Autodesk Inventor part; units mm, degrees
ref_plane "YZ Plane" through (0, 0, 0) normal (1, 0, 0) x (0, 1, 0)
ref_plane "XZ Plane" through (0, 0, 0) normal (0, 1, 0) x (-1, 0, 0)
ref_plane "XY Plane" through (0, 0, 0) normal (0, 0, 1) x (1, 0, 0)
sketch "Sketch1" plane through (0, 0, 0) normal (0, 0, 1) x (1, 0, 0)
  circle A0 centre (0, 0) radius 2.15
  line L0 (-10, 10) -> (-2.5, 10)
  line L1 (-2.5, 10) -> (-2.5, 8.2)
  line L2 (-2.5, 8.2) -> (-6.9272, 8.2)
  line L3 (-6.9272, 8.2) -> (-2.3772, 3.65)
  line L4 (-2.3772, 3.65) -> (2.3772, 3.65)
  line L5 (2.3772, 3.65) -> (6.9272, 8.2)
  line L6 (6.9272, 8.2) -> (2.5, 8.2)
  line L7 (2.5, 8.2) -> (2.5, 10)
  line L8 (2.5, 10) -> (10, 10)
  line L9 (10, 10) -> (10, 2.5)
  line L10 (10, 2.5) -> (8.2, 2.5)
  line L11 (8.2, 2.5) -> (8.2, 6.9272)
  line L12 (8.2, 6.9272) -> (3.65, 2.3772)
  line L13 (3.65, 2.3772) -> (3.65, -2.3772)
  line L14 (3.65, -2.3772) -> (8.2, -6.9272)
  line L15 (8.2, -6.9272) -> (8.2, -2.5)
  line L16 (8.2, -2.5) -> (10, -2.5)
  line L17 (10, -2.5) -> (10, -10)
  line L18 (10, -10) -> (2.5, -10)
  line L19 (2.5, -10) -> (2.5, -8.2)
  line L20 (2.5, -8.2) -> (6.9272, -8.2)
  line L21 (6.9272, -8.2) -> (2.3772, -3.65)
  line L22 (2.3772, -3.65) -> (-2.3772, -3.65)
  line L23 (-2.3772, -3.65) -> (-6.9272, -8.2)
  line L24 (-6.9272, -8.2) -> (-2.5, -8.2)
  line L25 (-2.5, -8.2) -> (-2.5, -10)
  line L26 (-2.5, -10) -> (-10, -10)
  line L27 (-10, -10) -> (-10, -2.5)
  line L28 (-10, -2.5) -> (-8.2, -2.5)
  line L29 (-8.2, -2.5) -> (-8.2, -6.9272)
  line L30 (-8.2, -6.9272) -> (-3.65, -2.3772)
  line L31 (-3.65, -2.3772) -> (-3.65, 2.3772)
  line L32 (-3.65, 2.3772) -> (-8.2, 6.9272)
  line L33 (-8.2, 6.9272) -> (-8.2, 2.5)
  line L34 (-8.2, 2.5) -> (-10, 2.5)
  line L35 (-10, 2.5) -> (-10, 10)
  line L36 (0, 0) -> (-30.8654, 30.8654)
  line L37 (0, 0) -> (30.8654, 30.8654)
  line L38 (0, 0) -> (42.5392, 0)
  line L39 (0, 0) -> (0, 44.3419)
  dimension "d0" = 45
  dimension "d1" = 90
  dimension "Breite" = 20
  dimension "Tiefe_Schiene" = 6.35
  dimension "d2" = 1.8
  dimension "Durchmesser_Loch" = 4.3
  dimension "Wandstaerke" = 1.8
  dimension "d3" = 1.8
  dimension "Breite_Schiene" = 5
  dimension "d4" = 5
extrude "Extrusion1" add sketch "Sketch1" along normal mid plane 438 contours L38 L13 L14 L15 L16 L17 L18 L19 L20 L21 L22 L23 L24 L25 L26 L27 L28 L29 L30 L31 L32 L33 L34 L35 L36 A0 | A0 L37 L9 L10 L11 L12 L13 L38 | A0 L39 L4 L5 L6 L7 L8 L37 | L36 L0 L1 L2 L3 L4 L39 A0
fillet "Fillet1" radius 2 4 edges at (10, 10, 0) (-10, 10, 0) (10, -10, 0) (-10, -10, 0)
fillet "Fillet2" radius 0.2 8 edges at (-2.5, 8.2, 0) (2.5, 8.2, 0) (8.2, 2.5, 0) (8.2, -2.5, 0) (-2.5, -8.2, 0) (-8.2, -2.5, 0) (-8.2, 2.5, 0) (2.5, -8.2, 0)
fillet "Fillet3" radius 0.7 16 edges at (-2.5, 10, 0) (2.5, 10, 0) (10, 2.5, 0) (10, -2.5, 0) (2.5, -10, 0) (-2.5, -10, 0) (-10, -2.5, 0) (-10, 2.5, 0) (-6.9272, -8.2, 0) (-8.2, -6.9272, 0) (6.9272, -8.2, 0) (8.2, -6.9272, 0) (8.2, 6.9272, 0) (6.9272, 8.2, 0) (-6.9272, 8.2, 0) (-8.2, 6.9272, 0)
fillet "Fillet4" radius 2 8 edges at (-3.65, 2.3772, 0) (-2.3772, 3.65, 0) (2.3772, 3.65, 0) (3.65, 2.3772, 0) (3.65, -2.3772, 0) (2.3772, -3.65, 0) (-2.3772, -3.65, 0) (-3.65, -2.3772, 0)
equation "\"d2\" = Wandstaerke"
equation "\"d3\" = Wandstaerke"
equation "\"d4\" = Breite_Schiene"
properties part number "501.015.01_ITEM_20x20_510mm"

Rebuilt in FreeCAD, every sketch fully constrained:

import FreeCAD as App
import Part
import Sketcher
from FreeCAD import Vector
Q = App.Units.Quantity


def edges_at(feature, points):
    """Names of the edges that pass closest to the given points."""
    edges = feature.Shape.Edges
    near = lambda p: min(range(len(edges)), key=lambda i: edges[i].distToShape(Part.Vertex(*p))[0])
    return sorted({f"Edge{near(p) + 1}" for p in points})

doc = App.newDocument("Part")
body = doc.addObject("PartDesign::Body", "Body")

# Sketch on XY plane
sketch1 = doc.addObject("Sketcher::SketchObject", "Sketch")
body.addObject(sketch1)
sketch1.AttachmentSupport = (doc.XY_Plane, [""])
sketch1.MapMode = "FlatFace"
sketch1.addGeometry([
    Part.LineSegment(Vector(3.6, -2.4, 0), Vector(3.6, 2.4, 0)),  # 0
    Part.LineSegment(Vector(3.6, 2.4, 0), Vector(8.2, 6.9, 0)),  # 1
    Part.LineSegment(Vector(8.2, 6.9, 0), Vector(8.2, 2.5, 0)),  # 2
    Part.LineSegment(Vector(8.2, 2.5, 0), Vector(10, 2.5, 0)),  # 3
    Part.LineSegment(Vector(10, 2.5, 0), Vector(10, 10, 0)),  # 4
    Part.LineSegment(Vector(10, 10, 0), Vector(2.5, 10, 0)),  # 5
    Part.LineSegment(Vector(2.5, 10, 0), Vector(2.5, 8.2, 0)),  # 6
    Part.LineSegment(Vector(2.5, 8.2, 0), Vector(6.9, 8.2, 0)),  # 7
    Part.LineSegment(Vector(6.9, 8.2, 0), Vector(2.4, 3.6, 0)),  # 8
    Part.LineSegment(Vector(2.4, 3.6, 0), Vector(-2.4, 3.6, 0)),  # 9
    Part.LineSegment(Vector(-2.4, 3.6, 0), Vector(-6.9, 8.2, 0)),  # 10
    Part.LineSegment(Vector(-6.9, 8.2, 0), Vector(-2.5, 8.2, 0)),  # 11
    Part.LineSegment(Vector(-2.5, 8.2, 0), Vector(-2.5, 10, 0)),  # 12
    Part.LineSegment(Vector(-2.5, 10, 0), Vector(-10, 10, 0)),  # 13
    Part.LineSegment(Vector(-10, 10, 0), Vector(-10, 2.5, 0)),  # 14
    Part.LineSegment(Vector(-10, 2.5, 0), Vector(-8.2, 2.5, 0)),  # 15
    Part.LineSegment(Vector(-8.2, 2.5, 0), Vector(-8.2, 6.9, 0)),  # 16
    Part.LineSegment(Vector(-8.2, 6.9, 0), Vector(-3.6, 2.4, 0)),  # 17
    Part.LineSegment(Vector(-3.6, 2.4, 0), Vector(-3.6, -2.4, 0)),  # 18
    Part.LineSegment(Vector(-3.6, -2.4, 0), Vector(-8.2, -6.9, 0)),  # 19
    Part.LineSegment(Vector(-8.2, -6.9, 0), Vector(-8.2, -2.5, 0)),  # 20
    Part.LineSegment(Vector(-8.2, -2.5, 0), Vector(-10, -2.5, 0)),  # 21
    Part.LineSegment(Vector(-10, -2.5, 0), Vector(-10, -10, 0)),  # 22
    Part.LineSegment(Vector(-10, -10, 0), Vector(-2.5, -10, 0)),  # 23
    Part.LineSegment(Vector(-2.5, -10, 0), Vector(-2.5, -8.2, 0)),  # 24
    Part.LineSegment(Vector(-2.5, -8.2, 0), Vector(-6.9, -8.2, 0)),  # 25
    Part.LineSegment(Vector(-6.9, -8.2, 0), Vector(-2.4, -3.6, 0)),  # 26
    Part.LineSegment(Vector(-2.4, -3.6, 0), Vector(2.4, -3.6, 0)),  # 27
    Part.LineSegment(Vector(2.4, -3.6, 0), Vector(6.9, -8.2, 0)),  # 28
    Part.LineSegment(Vector(6.9, -8.2, 0), Vector(2.5, -8.2, 0)),  # 29
    Part.LineSegment(Vector(2.5, -8.2, 0), Vector(2.5, -10, 0)),  # 30
    Part.LineSegment(Vector(2.5, -10, 0), Vector(10, -10, 0)),  # 31
    Part.LineSegment(Vector(10, -10, 0), Vector(10, -2.5, 0)),  # 32
    Part.LineSegment(Vector(10, -2.5, 0), Vector(8.2, -2.5, 0)),  # 33
    Part.LineSegment(Vector(8.2, -2.5, 0), Vector(8.2, -6.9, 0)),  # 34
    Part.LineSegment(Vector(8.2, -6.9, 0), Vector(3.6, -2.4, 0)),  # 35
    Part.Circle(Vector(0, 0, 0), Vector(0, 0, 1), 2.1),  # 36
], False)
sketch1.addConstraint([
    Sketcher.Constraint("Coincident", 0, 2, 1, 1),
    Sketcher.Constraint("Coincident", 1, 2, 2, 1),
    Sketcher.Constraint("Coincident", 2, 2, 3, 1),
    Sketcher.Constraint("Coincident", 3, 2, 4, 1),
    Sketcher.Constraint("Coincident", 4, 2, 5, 1),
    Sketcher.Constraint("Coincident", 5, 2, 6, 1),
    Sketcher.Constraint("Coincident", 6, 2, 7, 1),
    Sketcher.Constraint("Coincident", 7, 2, 8, 1),
    Sketcher.Constraint("Coincident", 8, 2, 9, 1),
    Sketcher.Constraint("Coincident", 9, 2, 10, 1),
    Sketcher.Constraint("Coincident", 10, 2, 11, 1),
    Sketcher.Constraint("Coincident", 11, 2, 12, 1),
    Sketcher.Constraint("Coincident", 12, 2, 13, 1),
    Sketcher.Constraint("Coincident", 13, 2, 14, 1),
    Sketcher.Constraint("Coincident", 14, 2, 15, 1),
    Sketcher.Constraint("Coincident", 15, 2, 16, 1),
    Sketcher.Constraint("Coincident", 16, 2, 17, 1),
    Sketcher.Constraint("Coincident", 17, 2, 18, 1),
    Sketcher.Constraint("Coincident", 18, 2, 19, 1),
    Sketcher.Constraint("Coincident", 19, 2, 20, 1),
    Sketcher.Constraint("Coincident", 20, 2, 21, 1),
    Sketcher.Constraint("Coincident", 21, 2, 22, 1),
    Sketcher.Constraint("Coincident", 22, 2, 23, 1),
    Sketcher.Constraint("Coincident", 23, 2, 24, 1),
    Sketcher.Constraint("Coincident", 24, 2, 25, 1),
    Sketcher.Constraint("Coincident", 25, 2, 26, 1),
    Sketcher.Constraint("Coincident", 26, 2, 27, 1),
    Sketcher.Constraint("Coincident", 27, 2, 28, 1),
    Sketcher.Constraint("Coincident", 28, 2, 29, 1),
    Sketcher.Constraint("Coincident", 29, 2, 30, 1),
    Sketcher.Constraint("Coincident", 30, 2, 31, 1),
    Sketcher.Constraint("Coincident", 31, 2, 32, 1),
    Sketcher.Constraint("Coincident", 32, 2, 33, 1),
    Sketcher.Constraint("Coincident", 33, 2, 34, 1),
    Sketcher.Constraint("Coincident", 34, 2, 35, 1),
    Sketcher.Constraint("Coincident", 35, 2, 0, 1),
    Sketcher.Constraint("Vertical", 0),
    Sketcher.Constraint("Vertical", 2),
    Sketcher.Constraint("Horizontal", 3),
    Sketcher.Constraint("Vertical", 4),
    Sketcher.Constraint("Horizontal", 5),
    Sketcher.Constraint("Vertical", 6),
    Sketcher.Constraint("Horizontal", 7),
    Sketcher.Constraint("Horizontal", 9),
    Sketcher.Constraint("Horizontal", 11),
    Sketcher.Constraint("Vertical", 12),
    Sketcher.Constraint("Horizontal", 13),
    Sketcher.Constraint("Vertical", 14),
    Sketcher.Constraint("Horizontal", 15),
    Sketcher.Constraint("Vertical", 16),
    Sketcher.Constraint("Vertical", 18),
    Sketcher.Constraint("Vertical", 20),
    Sketcher.Constraint("Horizontal", 21),
    Sketcher.Constraint("Vertical", 22),
    Sketcher.Constraint("Horizontal", 23),
    Sketcher.Constraint("Vertical", 24),
    Sketcher.Constraint("Horizontal", 25),
    Sketcher.Constraint("Horizontal", 27),
    Sketcher.Constraint("Horizontal", 29),
    Sketcher.Constraint("Vertical", 30),
    Sketcher.Constraint("Horizontal", 31),
    Sketcher.Constraint("Vertical", 32),
    Sketcher.Constraint("Horizontal", 33),
    Sketcher.Constraint("Vertical", 34),
    Sketcher.Constraint("Coincident", 36, 3, -1, 1),
    Sketcher.Constraint("Symmetric", 0, 2, 18, 2, -1, 1),
    Sketcher.Constraint("Symmetric", 1, 2, 19, 2, -1, 1),
    Sketcher.Constraint("Symmetric", 3, 2, 21, 2, -1, 1),
    Sketcher.Constraint("Symmetric", 5, 2, 23, 2, -1, 1),
    Sketcher.Constraint("Symmetric", 7, 2, 25, 2, -1, 1),
    Sketcher.Constraint("Symmetric", 8, 2, 26, 2, -1, 1),
    Sketcher.Constraint("Symmetric", 10, 2, 28, 2, -1, 1),
    Sketcher.Constraint("Symmetric", 12, 2, 30, 2, -1, 1),
    Sketcher.Constraint("Symmetric", 14, 2, 32, 2, -1, 1),
    Sketcher.Constraint("Symmetric", 16, 2, 34, 2, -1, 1),
    Sketcher.Constraint("Symmetric", 7, 2, 10, 2, -2),
    Sketcher.Constraint("Symmetric", 5, 2, 12, 2, -2),
    Sketcher.Constraint("Symmetric", 3, 2, 14, 2, -2),
    Sketcher.Constraint("Symmetric", 1, 2, 16, 2, -2),
    Sketcher.Constraint("Parallel", 1, 8),
    Sketcher.Constraint("Perpendicular", 8, 10),
    Sketcher.Constraint("Parallel", 10, 17),
    Sketcher.Constraint("Perpendicular", 26, 28),
    Sketcher.Constraint("Parallel", 28, 35),
    Sketcher.Constraint("Horizontal", 0, 2, 17, 2),
    Sketcher.Constraint("Equal", 27, 0),
    Sketcher.Constraint("Equal", 29, 2),
    Sketcher.Constraint("Equal", 31, 4),
    Sketcher.Constraint("Equal", 33, 6),
    Sketcher.Constraint("Equal", 1, 8),
    Sketcher.Constraint("Diameter", 36, Q("4.3 mm")),
    Sketcher.Constraint("DistanceX", 3, 1, 3, 2, Q("1.8 mm")),
    Sketcher.Constraint("DistanceX", 11, 2, 6, 2, Q("5 mm")),
    Sketcher.Constraint("DistanceX", 0, 2, 3, 2, Q("6.35 mm")),
    Sketcher.Constraint("DistanceX", 5, 2, 5, 1, Q("7.5 mm")),
    Sketcher.Constraint("DistanceX", 7, 1, 7, 2, Q("4.4272 mm")),
])
pad1 = doc.addObject("PartDesign::Pad", "Pad")
body.addObject(pad1)
pad1.Profile = sketch1
pad1.Length = 438
pad1.Midplane = True
doc.recompute()

fillet = doc.addObject("PartDesign::Fillet", "Fillet")
body.addObject(fillet)
fillet.Base = (pad1, edges_at(pad1, [
    (10, 10, 0),
    (-10, 10, 0),
    (10, -10, 0),
    (-10, -10, 0),
]))
fillet.Radius = 2
doc.recompute()

fillet2 = doc.addObject("PartDesign::Fillet", "Fillet001")
body.addObject(fillet2)
fillet2.Base = (fillet, edges_at(fillet, [
    (-2.5, 8.2, 0),
    (2.5, 8.2, 0),
    (8.2, 2.5, 0),
    (8.2, -2.5, 0),
    (-2.5, -8.2, 0),
    (-8.2, -2.5, 0),
    (-8.2, 2.5, 0),
    (2.5, -8.2, 0),
]))
fillet2.Radius = 0.2
doc.recompute()

fillet3 = doc.addObject("PartDesign::Fillet", "Fillet002")
body.addObject(fillet3)
fillet3.Base = (fillet2, edges_at(fillet2, [
    (-2.5, 10, 0),
    (2.5, 10, 0),
    (10, 2.5, 0),
    (10, -2.5, 0),
    (2.5, -10, 0),
    (-2.5, -10, 0),
    (-10, -2.5, 0),
    (-10, 2.5, 0),
    (-6.927, -8.2, 0),
    (-8.2, -6.927, 0),
    (6.927, -8.2, 0),
    (8.2, -6.927, 0),
    (8.2, 6.927, 0),
    (6.927, 8.2, 0),
    (-6.927, 8.2, 0),
    (-8.2, 6.927, 0),
]))
fillet3.Radius = 0.7
doc.recompute()

fillet4 = doc.addObject("PartDesign::Fillet", "Fillet003")
body.addObject(fillet4)
fillet4.Base = (fillet3, edges_at(fillet3, [
    (-3.65, 2.377, 0),
    (-2.377, 3.65, 0),
    (2.377, 3.65, 0),
    (3.65, 2.377, 0),
    (3.65, -2.377, 0),
    (2.377, -3.65, 0),
    (-2.377, -3.65, 0),
    (-3.65, -2.377, 0),
]))
fillet4.Radius = 2

doc.recompute()
